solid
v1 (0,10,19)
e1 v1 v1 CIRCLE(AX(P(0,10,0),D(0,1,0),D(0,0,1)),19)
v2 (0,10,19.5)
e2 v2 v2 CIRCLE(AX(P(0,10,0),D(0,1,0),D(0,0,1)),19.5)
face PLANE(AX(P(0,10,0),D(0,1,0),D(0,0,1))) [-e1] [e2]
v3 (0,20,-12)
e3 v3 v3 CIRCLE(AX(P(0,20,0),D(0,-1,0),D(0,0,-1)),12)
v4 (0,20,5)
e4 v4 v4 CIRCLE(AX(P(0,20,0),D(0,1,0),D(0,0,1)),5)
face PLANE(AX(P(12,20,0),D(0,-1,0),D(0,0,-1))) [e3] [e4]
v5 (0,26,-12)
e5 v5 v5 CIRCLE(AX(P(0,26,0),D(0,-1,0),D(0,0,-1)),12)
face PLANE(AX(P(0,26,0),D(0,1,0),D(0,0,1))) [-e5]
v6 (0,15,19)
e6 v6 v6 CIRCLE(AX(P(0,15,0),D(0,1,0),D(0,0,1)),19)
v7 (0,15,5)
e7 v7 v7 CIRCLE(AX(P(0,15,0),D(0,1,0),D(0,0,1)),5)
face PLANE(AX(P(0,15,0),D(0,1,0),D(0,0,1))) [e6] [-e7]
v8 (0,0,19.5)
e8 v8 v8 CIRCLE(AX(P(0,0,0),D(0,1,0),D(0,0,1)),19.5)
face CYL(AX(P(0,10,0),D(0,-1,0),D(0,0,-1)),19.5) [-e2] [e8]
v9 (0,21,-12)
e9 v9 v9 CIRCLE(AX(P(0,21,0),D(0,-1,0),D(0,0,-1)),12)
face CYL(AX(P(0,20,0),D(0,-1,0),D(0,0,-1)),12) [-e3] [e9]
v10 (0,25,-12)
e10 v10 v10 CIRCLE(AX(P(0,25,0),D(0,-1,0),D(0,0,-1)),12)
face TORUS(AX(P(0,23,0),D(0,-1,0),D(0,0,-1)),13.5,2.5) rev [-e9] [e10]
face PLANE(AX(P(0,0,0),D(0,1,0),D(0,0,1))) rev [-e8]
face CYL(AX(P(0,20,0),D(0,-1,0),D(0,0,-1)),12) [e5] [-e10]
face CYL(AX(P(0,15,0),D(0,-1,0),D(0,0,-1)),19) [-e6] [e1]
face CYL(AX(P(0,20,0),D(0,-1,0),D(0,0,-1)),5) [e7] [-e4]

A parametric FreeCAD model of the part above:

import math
import FreeCAD as App
import Part
import Sketcher

V = App.Vector
Q = App.Units.Quantity

doc = App.newDocument("Part")
body = doc.addObject("PartDesign::Body", "Body")

sketch1 = body.newObject("Sketcher::SketchObject", "Sketch")
sketch1.AttachmentSupport = (doc.getObject("XZ_Plane"), [""])
sketch1.MapMode = "FlatFace"
sketch1.addGeometry(Part.Circle(V(0, 0, 0), V(0, 0, 1), 20), False)
sketch1.addConstraint(Sketcher.Constraint("Coincident", 0, 3, -1, 1))
sketch1.addConstraint(Sketcher.Constraint("Diameter", 0, Q("39 mm")))
pad1 = body.newObject("PartDesign::Pad", "Pad")
pad1.Profile = sketch1
pad1.Length = 10
pad1.Reversed = True

sketch2 = body.newObject("Sketcher::SketchObject", "Sketch001")
sketch2.AttachmentSupport = (doc.getObject("XZ_Plane"), [""])
sketch2.MapMode = "FlatFace"
sketch2.AttachmentOffset = App.Placement(V(0, 0, -10), App.Rotation())
sketch2.addGeometry(Part.Circle(V(0, 0, 0), V(0, 0, 1), 19), False)
sketch2.addConstraint(Sketcher.Constraint("Coincident", 0, 3, -1, 1))
sketch2.addConstraint(Sketcher.Constraint("Diameter", 0, Q("38 mm")))
pad2 = body.newObject("PartDesign::Pad", "Pad001")
pad2.Profile = sketch2
pad2.Length = 5
pad2.Reversed = True

sketch3 = body.newObject("Sketcher::SketchObject", "Sketch002")
sketch3.AttachmentSupport = (doc.getObject("XZ_Plane"), [""])
sketch3.MapMode = "FlatFace"
sketch3.AttachmentOffset = App.Placement(V(0, 0, -15), App.Rotation())
sketch3.addGeometry(Part.Circle(V(0, 0, 0), V(0, 0, 1), 5), False)
sketch3.addConstraint(Sketcher.Constraint("Coincident", 0, 3, -1, 1))
sketch3.addConstraint(Sketcher.Constraint("Diameter", 0, Q("10 mm")))
pad3 = body.newObject("PartDesign::Pad", "Pad002")
pad3.Profile = sketch3
pad3.Length = 5
pad3.Reversed = True

sketch4 = body.newObject("Sketcher::SketchObject", "Sketch003")
sketch4.AttachmentSupport = (doc.getObject("XY_Plane"), [""])
sketch4.MapMode = "FlatFace"
sketch4.addGeometry(Part.LineSegment(V(0, 26, 0), V(0, 20, 0)), False)
sketch4.addGeometry(Part.LineSegment(V(0, 20, 0), V(12, 20, 0)), False)
sketch4.addGeometry(Part.LineSegment(V(12, 20, 0), V(12, 21, 0)), False)
sketch4.addGeometry(Part.ArcOfCircle(Part.Circle(V(13.5, 23, 0), V(0, 0, 1), 2.5), math.radians(127), math.radians(233)), False)
sketch4.addGeometry(Part.LineSegment(V(12, 25, 0), V(12, 26, 0)), False)
sketch4.addGeometry(Part.LineSegment(V(12, 26, 0), V(0, 26, 0)), False)
sketch4.addConstraint(Sketcher.Constraint("Coincident", 0, 2, 1, 1))
sketch4.addConstraint(Sketcher.Constraint("Coincident", 1, 2, 2, 1))
sketch4.addConstraint(Sketcher.Constraint("Coincident", 2, 2, 3, 2))
sketch4.addConstraint(Sketcher.Constraint("Coincident", 3, 1, 4, 1))
sketch4.addConstraint(Sketcher.Constraint("Coincident", 4, 2, 5, 1))
sketch4.addConstraint(Sketcher.Constraint("Coincident", 5, 2, 0, 1))
sketch4.addConstraint(Sketcher.Constraint("Vertical", 0))
sketch4.addConstraint(Sketcher.Constraint("Horizontal", 1))
sketch4.addConstraint(Sketcher.Constraint("Vertical", 2))
sketch4.addConstraint(Sketcher.Constraint("Vertical", 4))
sketch4.addConstraint(Sketcher.Constraint("Horizontal", 5))
sketch4.addConstraint(Sketcher.Constraint("PointOnObject", 0, 2, -2))
sketch4.addConstraint(Sketcher.Constraint("Vertical", 2, 2, 3, 1))
sketch4.addConstraint(Sketcher.Constraint("Equal", 2, 4))
sketch4.addConstraint(Sketcher.Constraint("Radius", 3, Q("2.5 mm")))
sketch4.addConstraint(Sketcher.Constraint("DistanceX", 1, 1, 1, 2, Q("12 mm")))
sketch4.addConstraint(Sketcher.Constraint("DistanceY", 0, 2, 0, 1, Q("6 mm")))
sketch4.addConstraint(Sketcher.Constraint("DistanceY", 2, 1, 2, 2, Q("1 mm")))
sketch4.addConstraint(Sketcher.Constraint("DistanceY", -1, 1, 3, 3, Q("23 mm")))
revolution = body.newObject("PartDesign::Revolution", "Revolution")
revolution.Profile = sketch4
revolution.ReferenceAxis = (sketch4, ["V_Axis"])
revolution.Angle = 360

doc.recompute()
